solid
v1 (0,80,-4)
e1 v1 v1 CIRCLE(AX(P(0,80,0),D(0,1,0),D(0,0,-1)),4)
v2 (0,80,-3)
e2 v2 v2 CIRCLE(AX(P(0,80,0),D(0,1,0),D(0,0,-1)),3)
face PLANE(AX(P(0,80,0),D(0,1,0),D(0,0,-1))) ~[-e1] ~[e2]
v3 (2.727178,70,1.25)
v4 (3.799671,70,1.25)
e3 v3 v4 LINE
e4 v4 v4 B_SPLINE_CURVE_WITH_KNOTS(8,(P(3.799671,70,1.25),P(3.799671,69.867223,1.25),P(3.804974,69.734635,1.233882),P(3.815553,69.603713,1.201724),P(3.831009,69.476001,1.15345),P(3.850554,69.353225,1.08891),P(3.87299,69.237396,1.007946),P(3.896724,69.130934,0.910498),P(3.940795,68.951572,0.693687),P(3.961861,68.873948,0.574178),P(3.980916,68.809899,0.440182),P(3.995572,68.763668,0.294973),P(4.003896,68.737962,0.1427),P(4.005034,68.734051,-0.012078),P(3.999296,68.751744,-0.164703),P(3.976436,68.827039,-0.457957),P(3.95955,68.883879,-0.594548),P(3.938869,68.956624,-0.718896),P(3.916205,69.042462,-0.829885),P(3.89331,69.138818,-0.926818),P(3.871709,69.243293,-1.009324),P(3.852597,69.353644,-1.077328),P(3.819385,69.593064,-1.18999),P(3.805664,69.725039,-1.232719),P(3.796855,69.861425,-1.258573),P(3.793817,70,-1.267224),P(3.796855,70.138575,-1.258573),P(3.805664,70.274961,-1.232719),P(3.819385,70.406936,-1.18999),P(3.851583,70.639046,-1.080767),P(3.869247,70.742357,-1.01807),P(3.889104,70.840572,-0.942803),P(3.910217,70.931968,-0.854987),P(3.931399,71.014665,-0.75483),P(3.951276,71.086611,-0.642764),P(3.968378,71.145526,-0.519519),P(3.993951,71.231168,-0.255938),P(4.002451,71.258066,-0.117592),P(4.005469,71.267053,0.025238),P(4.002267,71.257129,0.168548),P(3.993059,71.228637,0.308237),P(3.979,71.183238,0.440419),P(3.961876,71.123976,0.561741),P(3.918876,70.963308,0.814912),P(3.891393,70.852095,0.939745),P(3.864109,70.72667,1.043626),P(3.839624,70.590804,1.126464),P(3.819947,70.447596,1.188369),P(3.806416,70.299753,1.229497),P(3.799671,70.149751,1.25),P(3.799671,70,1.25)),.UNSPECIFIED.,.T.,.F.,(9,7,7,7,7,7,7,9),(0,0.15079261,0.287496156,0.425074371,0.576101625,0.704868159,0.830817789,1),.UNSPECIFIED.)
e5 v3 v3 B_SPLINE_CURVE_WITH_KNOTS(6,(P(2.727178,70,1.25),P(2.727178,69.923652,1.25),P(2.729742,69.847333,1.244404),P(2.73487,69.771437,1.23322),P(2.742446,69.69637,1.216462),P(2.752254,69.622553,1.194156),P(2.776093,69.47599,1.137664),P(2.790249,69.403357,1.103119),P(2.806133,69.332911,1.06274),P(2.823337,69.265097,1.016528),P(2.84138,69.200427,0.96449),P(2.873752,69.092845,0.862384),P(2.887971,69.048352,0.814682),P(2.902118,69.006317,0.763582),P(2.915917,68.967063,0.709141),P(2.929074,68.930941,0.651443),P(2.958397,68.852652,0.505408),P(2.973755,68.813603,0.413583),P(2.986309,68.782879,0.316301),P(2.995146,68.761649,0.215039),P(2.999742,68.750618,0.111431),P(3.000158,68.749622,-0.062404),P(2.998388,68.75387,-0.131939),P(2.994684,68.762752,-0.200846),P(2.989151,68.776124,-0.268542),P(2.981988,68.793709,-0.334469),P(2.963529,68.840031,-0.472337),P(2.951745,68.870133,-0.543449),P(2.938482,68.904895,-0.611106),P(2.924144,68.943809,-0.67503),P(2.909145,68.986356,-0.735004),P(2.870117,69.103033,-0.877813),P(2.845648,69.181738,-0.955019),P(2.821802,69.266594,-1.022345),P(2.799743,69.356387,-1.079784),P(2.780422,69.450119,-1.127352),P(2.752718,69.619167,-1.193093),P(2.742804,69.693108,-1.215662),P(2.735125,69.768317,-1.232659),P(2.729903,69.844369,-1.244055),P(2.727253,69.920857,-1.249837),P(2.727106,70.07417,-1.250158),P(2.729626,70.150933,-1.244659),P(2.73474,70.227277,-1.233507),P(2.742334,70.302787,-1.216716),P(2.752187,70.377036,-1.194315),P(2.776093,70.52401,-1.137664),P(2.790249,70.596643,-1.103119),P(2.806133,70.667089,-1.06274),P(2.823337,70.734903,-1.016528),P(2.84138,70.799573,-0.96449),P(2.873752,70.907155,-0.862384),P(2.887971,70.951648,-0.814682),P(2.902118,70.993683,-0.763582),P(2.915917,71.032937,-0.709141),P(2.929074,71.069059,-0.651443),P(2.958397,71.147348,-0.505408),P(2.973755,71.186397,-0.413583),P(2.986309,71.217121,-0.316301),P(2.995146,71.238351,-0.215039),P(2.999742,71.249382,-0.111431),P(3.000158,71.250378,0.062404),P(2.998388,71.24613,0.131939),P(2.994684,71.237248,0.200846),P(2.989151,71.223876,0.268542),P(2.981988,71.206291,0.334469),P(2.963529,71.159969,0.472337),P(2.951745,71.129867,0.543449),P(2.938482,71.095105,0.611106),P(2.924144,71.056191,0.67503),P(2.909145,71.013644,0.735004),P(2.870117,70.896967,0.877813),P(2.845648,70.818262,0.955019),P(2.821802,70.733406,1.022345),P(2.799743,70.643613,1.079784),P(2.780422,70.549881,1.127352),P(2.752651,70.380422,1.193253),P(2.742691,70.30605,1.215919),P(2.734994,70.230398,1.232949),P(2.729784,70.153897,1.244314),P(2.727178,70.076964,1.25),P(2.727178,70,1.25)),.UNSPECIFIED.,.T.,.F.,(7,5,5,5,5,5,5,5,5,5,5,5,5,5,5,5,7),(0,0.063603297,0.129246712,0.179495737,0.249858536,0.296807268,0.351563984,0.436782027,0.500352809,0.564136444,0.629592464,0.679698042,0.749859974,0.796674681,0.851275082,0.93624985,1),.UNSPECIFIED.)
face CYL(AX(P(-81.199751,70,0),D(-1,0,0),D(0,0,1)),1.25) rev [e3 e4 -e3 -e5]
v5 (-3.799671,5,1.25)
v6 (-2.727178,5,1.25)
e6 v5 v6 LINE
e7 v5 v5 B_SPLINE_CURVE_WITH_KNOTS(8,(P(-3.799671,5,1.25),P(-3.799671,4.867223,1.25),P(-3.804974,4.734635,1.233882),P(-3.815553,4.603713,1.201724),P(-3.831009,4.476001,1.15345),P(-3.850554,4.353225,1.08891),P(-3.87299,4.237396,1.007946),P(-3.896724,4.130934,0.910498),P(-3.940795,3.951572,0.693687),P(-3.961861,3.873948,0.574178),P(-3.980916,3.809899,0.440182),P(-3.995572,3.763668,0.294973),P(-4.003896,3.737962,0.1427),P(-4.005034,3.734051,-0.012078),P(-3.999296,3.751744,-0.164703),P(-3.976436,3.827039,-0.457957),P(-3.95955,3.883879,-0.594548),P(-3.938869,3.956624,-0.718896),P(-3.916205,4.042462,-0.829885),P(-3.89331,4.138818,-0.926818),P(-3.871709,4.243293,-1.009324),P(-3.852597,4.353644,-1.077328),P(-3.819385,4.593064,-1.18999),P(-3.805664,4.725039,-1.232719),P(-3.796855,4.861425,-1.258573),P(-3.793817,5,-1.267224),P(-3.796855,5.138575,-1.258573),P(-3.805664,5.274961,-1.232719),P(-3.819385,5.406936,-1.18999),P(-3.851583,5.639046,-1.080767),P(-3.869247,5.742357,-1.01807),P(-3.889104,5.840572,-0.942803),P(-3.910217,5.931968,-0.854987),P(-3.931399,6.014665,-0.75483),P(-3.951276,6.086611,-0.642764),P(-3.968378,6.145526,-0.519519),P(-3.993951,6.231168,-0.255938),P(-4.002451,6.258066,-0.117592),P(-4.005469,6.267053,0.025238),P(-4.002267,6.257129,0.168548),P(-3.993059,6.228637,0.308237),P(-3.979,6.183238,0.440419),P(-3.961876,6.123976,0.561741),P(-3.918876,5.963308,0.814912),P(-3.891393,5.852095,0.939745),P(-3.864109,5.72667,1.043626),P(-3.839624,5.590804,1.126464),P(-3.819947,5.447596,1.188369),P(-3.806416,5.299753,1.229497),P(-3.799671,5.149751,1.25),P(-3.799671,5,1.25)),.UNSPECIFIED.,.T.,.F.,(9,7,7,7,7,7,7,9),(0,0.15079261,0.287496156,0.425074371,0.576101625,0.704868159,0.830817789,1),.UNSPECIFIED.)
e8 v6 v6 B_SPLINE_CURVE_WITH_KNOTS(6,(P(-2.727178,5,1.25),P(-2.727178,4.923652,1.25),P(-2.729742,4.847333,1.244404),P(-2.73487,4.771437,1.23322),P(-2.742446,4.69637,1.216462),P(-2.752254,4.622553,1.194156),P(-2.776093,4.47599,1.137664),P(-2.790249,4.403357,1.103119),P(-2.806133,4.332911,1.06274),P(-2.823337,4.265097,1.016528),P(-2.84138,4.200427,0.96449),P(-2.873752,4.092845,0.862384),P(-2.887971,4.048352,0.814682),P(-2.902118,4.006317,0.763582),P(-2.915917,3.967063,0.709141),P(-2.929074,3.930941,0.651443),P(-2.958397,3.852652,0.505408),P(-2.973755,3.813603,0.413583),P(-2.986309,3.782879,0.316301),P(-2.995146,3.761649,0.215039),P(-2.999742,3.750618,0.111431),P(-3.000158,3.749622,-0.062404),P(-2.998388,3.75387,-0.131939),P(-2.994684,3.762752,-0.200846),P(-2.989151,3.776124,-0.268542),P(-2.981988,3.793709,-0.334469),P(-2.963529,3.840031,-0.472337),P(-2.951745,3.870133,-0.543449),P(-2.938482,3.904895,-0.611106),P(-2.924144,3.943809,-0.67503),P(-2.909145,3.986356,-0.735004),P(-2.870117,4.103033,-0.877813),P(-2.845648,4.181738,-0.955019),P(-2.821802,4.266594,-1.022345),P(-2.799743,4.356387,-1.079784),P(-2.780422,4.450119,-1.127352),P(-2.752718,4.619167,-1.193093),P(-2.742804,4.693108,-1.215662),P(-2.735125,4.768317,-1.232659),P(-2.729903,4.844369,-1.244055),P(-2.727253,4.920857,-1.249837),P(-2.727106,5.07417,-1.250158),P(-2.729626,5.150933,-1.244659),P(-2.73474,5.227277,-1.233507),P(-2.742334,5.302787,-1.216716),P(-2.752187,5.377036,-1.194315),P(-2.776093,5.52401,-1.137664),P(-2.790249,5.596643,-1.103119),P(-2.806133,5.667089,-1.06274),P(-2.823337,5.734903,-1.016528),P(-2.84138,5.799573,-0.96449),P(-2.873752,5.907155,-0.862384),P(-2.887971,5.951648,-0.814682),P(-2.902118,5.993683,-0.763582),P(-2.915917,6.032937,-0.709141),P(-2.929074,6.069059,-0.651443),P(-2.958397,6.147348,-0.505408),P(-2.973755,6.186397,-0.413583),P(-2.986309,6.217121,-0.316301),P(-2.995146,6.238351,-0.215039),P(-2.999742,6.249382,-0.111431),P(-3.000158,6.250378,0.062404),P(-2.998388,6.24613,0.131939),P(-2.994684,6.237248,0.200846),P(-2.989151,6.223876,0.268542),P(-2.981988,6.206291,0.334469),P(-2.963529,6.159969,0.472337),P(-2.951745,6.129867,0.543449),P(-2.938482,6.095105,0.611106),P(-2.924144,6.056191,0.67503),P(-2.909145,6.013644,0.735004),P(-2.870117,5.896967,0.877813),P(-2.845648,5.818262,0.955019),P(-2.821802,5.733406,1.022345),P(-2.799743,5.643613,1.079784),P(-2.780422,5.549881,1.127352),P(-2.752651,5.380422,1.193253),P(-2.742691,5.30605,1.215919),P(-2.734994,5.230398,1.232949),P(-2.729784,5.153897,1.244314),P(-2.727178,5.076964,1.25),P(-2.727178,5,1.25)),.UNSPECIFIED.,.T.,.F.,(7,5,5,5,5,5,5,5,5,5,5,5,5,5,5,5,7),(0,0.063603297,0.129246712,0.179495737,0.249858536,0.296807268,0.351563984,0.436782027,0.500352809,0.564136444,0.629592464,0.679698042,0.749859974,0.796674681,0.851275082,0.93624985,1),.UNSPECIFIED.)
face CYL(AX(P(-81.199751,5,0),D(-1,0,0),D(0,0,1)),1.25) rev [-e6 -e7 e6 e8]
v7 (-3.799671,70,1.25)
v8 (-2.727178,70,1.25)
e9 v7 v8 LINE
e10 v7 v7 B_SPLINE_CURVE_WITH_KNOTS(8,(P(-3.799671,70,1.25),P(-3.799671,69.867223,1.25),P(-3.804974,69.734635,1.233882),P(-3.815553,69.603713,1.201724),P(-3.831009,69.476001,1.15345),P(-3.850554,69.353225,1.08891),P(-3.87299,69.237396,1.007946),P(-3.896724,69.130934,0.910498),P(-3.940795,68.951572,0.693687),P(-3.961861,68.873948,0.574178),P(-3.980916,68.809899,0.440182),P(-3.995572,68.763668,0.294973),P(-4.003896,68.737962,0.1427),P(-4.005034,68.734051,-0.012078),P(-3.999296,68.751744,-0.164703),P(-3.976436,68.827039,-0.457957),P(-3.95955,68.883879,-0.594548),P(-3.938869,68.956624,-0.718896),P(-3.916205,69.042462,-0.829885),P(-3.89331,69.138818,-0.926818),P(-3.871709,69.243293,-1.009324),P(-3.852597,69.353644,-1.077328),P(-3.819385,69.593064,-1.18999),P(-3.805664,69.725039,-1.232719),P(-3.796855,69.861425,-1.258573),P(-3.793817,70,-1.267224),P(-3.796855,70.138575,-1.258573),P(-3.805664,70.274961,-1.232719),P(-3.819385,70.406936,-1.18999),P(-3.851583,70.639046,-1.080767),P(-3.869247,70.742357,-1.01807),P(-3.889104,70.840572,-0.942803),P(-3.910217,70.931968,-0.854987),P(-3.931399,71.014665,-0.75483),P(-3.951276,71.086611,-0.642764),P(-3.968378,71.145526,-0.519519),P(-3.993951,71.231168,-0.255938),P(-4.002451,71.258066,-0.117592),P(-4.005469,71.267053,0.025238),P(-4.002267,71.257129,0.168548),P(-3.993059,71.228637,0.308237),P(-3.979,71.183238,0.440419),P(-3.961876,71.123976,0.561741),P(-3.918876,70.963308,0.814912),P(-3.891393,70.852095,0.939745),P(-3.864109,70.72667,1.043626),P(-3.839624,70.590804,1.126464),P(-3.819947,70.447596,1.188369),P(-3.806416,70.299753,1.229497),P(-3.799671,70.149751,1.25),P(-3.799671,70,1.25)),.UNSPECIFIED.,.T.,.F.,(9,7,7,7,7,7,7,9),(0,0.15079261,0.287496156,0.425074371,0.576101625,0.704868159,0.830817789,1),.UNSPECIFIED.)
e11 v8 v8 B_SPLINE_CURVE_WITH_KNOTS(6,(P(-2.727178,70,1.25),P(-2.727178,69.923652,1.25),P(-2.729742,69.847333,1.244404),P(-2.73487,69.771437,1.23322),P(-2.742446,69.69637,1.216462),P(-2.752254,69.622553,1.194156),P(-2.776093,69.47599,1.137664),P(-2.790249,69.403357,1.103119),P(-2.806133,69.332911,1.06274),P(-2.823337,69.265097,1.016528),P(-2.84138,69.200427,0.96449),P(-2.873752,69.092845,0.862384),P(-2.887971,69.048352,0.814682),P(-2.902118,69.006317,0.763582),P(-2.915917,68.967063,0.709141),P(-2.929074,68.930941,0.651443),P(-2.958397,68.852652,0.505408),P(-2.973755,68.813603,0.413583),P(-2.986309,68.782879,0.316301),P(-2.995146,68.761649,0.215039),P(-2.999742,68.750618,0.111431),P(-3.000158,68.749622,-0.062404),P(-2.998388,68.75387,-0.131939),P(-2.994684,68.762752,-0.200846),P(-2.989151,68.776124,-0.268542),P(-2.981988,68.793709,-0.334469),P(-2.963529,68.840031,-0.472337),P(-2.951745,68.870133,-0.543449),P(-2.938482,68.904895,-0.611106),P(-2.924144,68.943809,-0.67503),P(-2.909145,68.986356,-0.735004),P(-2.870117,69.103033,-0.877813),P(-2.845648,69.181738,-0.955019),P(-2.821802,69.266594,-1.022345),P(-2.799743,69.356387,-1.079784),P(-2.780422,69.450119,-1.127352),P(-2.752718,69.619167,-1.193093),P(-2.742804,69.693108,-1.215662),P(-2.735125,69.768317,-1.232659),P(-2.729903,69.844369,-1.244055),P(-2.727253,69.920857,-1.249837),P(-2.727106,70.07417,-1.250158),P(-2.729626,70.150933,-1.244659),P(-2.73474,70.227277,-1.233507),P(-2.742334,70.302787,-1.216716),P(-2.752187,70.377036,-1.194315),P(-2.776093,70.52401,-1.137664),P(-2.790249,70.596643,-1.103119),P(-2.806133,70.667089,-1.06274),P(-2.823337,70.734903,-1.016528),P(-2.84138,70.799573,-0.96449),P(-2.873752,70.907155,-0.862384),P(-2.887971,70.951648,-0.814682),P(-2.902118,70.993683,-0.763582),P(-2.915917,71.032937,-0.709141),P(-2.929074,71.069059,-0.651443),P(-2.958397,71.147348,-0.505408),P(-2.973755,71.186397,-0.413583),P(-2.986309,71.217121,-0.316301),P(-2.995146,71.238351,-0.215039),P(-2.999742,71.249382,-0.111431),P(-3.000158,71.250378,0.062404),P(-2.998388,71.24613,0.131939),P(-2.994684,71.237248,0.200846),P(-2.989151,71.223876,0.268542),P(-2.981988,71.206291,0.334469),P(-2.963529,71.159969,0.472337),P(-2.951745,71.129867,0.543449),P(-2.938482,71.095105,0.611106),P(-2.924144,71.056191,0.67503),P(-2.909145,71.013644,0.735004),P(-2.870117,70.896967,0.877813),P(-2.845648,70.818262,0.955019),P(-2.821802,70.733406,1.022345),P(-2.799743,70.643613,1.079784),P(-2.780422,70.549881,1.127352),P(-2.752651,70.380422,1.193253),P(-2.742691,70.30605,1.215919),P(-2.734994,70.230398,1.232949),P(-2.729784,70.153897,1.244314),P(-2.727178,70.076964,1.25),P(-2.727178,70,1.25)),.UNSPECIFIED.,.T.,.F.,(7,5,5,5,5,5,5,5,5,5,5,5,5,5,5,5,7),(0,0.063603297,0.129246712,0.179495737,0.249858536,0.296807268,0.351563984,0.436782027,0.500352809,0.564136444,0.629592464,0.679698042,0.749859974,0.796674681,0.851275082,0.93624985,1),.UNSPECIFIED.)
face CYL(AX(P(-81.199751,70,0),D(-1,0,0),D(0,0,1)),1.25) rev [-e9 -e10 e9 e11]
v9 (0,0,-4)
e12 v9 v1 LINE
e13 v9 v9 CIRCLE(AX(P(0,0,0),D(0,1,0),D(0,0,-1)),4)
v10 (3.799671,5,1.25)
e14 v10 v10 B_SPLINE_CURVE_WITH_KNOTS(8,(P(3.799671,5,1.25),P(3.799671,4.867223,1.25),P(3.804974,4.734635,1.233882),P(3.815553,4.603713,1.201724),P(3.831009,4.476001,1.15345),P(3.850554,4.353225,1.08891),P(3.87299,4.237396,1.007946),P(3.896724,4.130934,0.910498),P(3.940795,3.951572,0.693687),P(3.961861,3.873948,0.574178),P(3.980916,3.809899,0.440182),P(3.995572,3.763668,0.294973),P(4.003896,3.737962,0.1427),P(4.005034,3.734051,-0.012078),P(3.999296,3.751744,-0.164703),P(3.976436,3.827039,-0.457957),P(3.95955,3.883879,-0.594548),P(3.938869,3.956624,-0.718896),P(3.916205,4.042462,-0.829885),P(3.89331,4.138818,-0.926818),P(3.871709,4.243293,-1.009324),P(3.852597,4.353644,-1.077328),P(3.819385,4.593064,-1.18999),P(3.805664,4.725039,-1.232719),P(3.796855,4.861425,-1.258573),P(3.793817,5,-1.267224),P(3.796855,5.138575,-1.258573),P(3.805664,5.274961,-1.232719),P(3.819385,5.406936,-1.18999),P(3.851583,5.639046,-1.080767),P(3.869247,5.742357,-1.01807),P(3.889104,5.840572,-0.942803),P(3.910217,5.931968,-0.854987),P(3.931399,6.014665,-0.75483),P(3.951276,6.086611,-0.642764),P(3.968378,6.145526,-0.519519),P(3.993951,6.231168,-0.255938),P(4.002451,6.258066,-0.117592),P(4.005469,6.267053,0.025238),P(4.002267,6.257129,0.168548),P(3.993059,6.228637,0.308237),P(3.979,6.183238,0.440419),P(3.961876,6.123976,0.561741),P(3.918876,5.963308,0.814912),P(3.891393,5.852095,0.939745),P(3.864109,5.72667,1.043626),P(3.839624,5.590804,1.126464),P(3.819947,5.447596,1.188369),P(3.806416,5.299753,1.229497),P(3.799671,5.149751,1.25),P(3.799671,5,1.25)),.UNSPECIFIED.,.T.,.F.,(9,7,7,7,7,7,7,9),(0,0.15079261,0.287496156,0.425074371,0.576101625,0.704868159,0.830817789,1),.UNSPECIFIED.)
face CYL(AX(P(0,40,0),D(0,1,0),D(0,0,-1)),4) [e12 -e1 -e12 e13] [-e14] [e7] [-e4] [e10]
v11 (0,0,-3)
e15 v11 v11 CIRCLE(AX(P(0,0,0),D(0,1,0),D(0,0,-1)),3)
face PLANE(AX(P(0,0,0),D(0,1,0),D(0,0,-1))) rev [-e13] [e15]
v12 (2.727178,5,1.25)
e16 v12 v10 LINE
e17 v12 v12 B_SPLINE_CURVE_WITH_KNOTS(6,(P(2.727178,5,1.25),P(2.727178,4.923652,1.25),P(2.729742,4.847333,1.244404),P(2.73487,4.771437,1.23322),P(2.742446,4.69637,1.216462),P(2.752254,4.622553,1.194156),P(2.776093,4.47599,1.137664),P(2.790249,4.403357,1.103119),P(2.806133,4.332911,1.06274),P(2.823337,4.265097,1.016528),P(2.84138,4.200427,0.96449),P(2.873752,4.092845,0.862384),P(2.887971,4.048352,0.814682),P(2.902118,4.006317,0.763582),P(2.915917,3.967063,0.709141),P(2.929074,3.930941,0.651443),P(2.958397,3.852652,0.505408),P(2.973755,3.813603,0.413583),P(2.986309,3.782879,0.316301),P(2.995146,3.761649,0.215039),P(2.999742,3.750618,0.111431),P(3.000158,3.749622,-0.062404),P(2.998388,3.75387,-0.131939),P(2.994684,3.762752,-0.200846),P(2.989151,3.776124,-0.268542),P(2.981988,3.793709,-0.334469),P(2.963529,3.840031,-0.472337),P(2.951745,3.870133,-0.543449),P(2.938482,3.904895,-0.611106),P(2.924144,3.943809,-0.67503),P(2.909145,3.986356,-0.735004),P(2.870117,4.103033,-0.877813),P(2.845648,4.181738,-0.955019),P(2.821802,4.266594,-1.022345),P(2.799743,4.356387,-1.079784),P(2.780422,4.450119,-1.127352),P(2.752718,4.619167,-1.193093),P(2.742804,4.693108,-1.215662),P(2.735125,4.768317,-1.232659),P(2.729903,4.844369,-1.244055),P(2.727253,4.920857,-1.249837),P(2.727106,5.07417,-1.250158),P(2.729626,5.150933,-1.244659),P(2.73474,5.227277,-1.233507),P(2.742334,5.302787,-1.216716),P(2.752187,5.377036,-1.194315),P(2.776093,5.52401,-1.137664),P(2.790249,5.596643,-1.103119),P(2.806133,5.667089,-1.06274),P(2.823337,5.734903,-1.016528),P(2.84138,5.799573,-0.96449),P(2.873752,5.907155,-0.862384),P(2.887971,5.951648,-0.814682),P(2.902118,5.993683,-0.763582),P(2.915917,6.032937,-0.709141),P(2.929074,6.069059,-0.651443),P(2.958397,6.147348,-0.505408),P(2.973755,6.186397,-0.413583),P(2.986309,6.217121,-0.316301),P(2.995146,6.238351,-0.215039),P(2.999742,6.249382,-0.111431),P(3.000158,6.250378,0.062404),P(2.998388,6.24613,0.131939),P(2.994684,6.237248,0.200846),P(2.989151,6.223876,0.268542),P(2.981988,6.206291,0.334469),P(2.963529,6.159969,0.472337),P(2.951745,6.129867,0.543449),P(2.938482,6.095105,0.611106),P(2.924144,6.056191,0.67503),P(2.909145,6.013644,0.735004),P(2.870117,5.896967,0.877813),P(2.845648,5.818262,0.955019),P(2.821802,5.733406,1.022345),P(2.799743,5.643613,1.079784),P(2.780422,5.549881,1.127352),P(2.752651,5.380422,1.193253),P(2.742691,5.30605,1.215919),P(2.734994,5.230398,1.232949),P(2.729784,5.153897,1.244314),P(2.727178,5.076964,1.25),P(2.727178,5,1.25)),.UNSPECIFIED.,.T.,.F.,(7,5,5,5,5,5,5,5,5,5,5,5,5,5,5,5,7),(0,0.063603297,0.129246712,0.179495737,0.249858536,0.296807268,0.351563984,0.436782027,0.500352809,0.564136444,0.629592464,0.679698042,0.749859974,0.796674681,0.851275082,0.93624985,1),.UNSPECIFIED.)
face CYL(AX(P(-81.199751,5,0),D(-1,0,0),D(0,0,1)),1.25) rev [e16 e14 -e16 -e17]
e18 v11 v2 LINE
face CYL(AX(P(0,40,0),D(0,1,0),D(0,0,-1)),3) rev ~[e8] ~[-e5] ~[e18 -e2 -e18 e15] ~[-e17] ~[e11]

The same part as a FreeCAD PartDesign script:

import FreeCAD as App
import Part
import Sketcher


def add_polygon(sketch, points):
    """Adds a closed chain of lines whose ends are joined by coincident constraints."""
    first, n = sketch.GeometryCount, len(points)
    for a, b in zip(points, points[1:] + points[:1]):
        sketch.addGeometry(Part.LineSegment(App.Vector(*a, 0), App.Vector(*b, 0)), False)
    for i in range(n):
        sketch.addConstraint(Sketcher.Constraint("Coincident", first + i, 2, first + (i + 1) % n, 1))

doc = App.newDocument("Part")
body = doc.addObject("PartDesign::Body", "Body")

# Sketch on YZ plane
sketch1 = body.newObject("Sketcher::SketchObject", "Sketch")
sketch1.AttachmentSupport = (doc.getObject("YZ_Plane"), [""])
sketch1.MapMode = "FlatFace"
add_polygon(sketch1, [(80, -3), (0, -3), (0, -4), (80, -4)])  # lines 0-3
sketch1.addConstraint([
    Sketcher.Constraint("Horizontal", 0),
    Sketcher.Constraint("Vertical", 1),
    Sketcher.Constraint("Horizontal", 2),
    Sketcher.Constraint("Vertical", 3),
    Sketcher.Constraint("PointOnObject", 0, 2, -2),
    Sketcher.Constraint("DistanceX", 0, 2, 0, 1, 80.0),
    Sketcher.Constraint("DistanceY", 1, 2, 1, 1, 1.0),
    Sketcher.Constraint("DistanceY", 0, 2, -1, 1, 3.0),
])
revolution = body.newObject("PartDesign::Revolution", "Revolution")
revolution.Profile = sketch1
revolution.ReferenceAxis = (sketch1, ["H_Axis"])
revolution.Angle = 360

# Sketch on YZ plane
sketch2 = body.newObject("Sketcher::SketchObject", "Sketch001")
sketch2.AttachmentSupport = (doc.getObject("YZ_Plane"), [""])
sketch2.MapMode = "FlatFace"
sketch2.addGeometry([
    Part.Circle(App.Vector(5, 0, 0), App.Vector(0, 0, 1), 1.25),
    Part.Circle(App.Vector(70, 0, 0), App.Vector(0, 0, 1), 1.25),
], False)
sketch2.addConstraint([
    Sketcher.Constraint("Equal", 0, 1),
    Sketcher.Constraint("PointOnObject", 0, 3, -1),
    Sketcher.Constraint("PointOnObject", 1, 3, -1),
    Sketcher.Constraint("Diameter", 0, 2.5),
    Sketcher.Constraint("DistanceX", -1, 1, 0, 3, 5.0),
    Sketcher.Constraint("DistanceX", -1, 1, 1, 3, 70.0),
])
pocket1 = body.newObject("PartDesign::Pocket", "Pocket")
pocket1.Profile = sketch2
pocket1.Type = "ThroughAll"
pocket1.Midplane = True

doc.recompute()
